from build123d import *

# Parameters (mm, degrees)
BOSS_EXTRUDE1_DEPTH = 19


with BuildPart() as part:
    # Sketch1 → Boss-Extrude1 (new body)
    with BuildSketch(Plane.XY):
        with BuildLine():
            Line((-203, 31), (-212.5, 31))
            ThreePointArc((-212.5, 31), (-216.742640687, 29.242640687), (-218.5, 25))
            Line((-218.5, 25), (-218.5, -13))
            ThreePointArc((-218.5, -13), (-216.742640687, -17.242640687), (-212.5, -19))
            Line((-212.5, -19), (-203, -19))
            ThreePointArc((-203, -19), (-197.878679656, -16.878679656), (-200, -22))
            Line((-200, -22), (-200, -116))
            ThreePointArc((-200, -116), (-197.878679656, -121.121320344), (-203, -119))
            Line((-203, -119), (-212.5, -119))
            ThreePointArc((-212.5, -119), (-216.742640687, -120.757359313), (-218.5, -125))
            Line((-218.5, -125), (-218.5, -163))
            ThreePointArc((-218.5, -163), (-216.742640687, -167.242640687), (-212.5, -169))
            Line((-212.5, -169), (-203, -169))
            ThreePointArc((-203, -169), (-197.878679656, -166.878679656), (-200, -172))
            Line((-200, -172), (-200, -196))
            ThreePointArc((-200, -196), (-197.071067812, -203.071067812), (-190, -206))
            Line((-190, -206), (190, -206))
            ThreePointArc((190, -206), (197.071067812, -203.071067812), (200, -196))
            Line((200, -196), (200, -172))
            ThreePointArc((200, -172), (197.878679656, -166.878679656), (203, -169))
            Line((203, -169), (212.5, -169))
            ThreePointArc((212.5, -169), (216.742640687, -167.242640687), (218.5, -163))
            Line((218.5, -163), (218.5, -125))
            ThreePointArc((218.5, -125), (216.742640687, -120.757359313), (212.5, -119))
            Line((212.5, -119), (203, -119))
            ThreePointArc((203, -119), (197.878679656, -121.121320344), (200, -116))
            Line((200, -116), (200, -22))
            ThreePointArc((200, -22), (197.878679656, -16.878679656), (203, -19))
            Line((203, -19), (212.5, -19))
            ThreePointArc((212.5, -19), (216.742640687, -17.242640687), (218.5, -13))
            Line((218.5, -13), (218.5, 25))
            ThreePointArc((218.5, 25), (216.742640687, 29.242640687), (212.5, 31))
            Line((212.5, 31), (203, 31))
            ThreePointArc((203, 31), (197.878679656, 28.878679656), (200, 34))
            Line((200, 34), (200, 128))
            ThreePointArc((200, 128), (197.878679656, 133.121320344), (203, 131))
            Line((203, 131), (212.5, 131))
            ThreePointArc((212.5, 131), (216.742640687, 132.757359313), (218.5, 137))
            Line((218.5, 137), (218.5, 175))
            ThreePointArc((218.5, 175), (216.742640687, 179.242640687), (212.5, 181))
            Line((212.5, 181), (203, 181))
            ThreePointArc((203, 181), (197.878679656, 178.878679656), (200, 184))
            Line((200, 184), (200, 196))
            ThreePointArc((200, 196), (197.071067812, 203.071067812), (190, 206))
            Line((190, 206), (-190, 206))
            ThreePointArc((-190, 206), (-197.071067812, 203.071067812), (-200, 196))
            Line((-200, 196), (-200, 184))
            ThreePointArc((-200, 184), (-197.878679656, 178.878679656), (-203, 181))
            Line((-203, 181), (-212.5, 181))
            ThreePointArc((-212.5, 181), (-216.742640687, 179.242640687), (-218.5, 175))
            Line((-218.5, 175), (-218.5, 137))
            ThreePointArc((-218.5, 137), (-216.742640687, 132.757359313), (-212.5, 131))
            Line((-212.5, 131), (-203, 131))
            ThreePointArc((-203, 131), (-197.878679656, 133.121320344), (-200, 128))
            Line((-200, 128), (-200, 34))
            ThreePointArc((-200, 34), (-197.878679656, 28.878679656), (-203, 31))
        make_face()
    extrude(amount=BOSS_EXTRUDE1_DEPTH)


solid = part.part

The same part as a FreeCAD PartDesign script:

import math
import FreeCAD as App
import Part
import Sketcher

doc = App.newDocument("Part")
body = doc.addObject("PartDesign::Body", "Body")

# Sketch on XY plane
sketch1 = body.newObject("Sketcher::SketchObject", "Sketch")
sketch1.AttachmentSupport = (doc.getObject("XY_Plane"), [""])
sketch1.MapMode = "FlatFace"
sketch1.addGeometry([
    Part.LineSegment(App.Vector(-203, 31, 0), App.Vector(-212.5, 31, 0)),  # 0
    Part.ArcOfCircle(Part.Circle(App.Vector(-212.5, 25, 0), App.Vector(0, 0, 1), 6), math.radians(90), math.radians(180)),  # 1
    Part.LineSegment(App.Vector(-218.5, 25, 0), App.Vector(-218.5, -13, 0)),  # 2
    Part.ArcOfCircle(Part.Circle(App.Vector(-212.5, -13, 0), App.Vector(0, 0, 1), 6), math.radians(180), math.radians(270)),  # 3
    Part.LineSegment(App.Vector(-212.5, -19, 0), App.Vector(-203, -19, 0)),  # 4
    Part.ArcOfCircle(Part.Circle(App.Vector(-200, -19, 0), App.Vector(0, 0, 1), 3), math.radians(-90), math.radians(180)),  # 5
    Part.LineSegment(App.Vector(-200, -22, 0), App.Vector(-200, -116, 0)),  # 6
    Part.ArcOfCircle(Part.Circle(App.Vector(-200, -119, 0), App.Vector(0, 0, 1), 3), math.radians(180), math.radians(450)),  # 7
    Part.LineSegment(App.Vector(-203, -119, 0), App.Vector(-212.5, -119, 0)),  # 8
    Part.ArcOfCircle(Part.Circle(App.Vector(-212.5, -125, 0), App.Vector(0, 0, 1), 6), math.radians(90), math.radians(180)),  # 9
    Part.LineSegment(App.Vector(-218.5, -125, 0), App.Vector(-218.5, -163, 0)),  # 10
    Part.ArcOfCircle(Part.Circle(App.Vector(-212.5, -163, 0), App.Vector(0, 0, 1), 6), math.radians(180), math.radians(270)),  # 11
    Part.LineSegment(App.Vector(-212.5, -169, 0), App.Vector(-203, -169, 0)),  # 12
    Part.ArcOfCircle(Part.Circle(App.Vector(-200, -169, 0), App.Vector(0, 0, 1), 3), math.radians(-90), math.radians(180)),  # 13
    Part.LineSegment(App.Vector(-200, -172, 0), App.Vector(-200, -196, 0)),  # 14
    Part.ArcOfCircle(Part.Circle(App.Vector(-190, -196, 0), App.Vector(0, 0, 1), 10), math.radians(180), math.radians(270)),  # 15
    Part.LineSegment(App.Vector(-190, -206, 0), App.Vector(190, -206, 0)),  # 16
    Part.ArcOfCircle(Part.Circle(App.Vector(190, -196, 0), App.Vector(0, 0, 1), 10), math.radians(-90), math.radians(0)),  # 17
    Part.LineSegment(App.Vector(200, -196, 0), App.Vector(200, -172, 0)),  # 18
    Part.ArcOfCircle(Part.Circle(App.Vector(200, -169, 0), App.Vector(0, 0, 1), 3), math.radians(0), math.radians(270)),  # 19
    Part.LineSegment(App.Vector(203, -169, 0), App.Vector(212.5, -169, 0)),  # 20
    Part.ArcOfCircle(Part.Circle(App.Vector(212.5, -163, 0), App.Vector(0, 0, 1), 6), math.radians(-90), math.radians(0)),  # 21
    Part.LineSegment(App.Vector(218.5, -163, 0), App.Vector(218.5, -125, 0)),  # 22
    Part.ArcOfCircle(Part.Circle(App.Vector(212.5, -125, 0), App.Vector(0, 0, 1), 6), math.radians(0), math.radians(90)),  # 23
    Part.LineSegment(App.Vector(212.5, -119, 0), App.Vector(203, -119, 0)),  # 24
    Part.ArcOfCircle(Part.Circle(App.Vector(200, -119, 0), App.Vector(0, 0, 1), 3), math.radians(90), math.radians(360)),  # 25
    Part.LineSegment(App.Vector(200, -116, 0), App.Vector(200, -22, 0)),  # 26
    Part.ArcOfCircle(Part.Circle(App.Vector(200, -19, 0), App.Vector(0, 0, 1), 3), math.radians(0), math.radians(270)),  # 27
    Part.LineSegment(App.Vector(203, -19, 0), App.Vector(212.5, -19, 0)),  # 28
    Part.ArcOfCircle(Part.Circle(App.Vector(212.5, -13, 0), App.Vector(0, 0, 1), 6), math.radians(-90), math.radians(0)),  # 29
    Part.LineSegment(App.Vector(218.5, -13, 0), App.Vector(218.5, 25, 0)),  # 30
    Part.ArcOfCircle(Part.Circle(App.Vector(212.5, 25, 0), App.Vector(0, 0, 1), 6), math.radians(0), math.radians(90)),  # 31
    Part.LineSegment(App.Vector(212.5, 31, 0), App.Vector(203, 31, 0)),  # 32
    Part.ArcOfCircle(Part.Circle(App.Vector(200, 31, 0), App.Vector(0, 0, 1), 3), math.radians(90), math.radians(360)),  # 33
    Part.LineSegment(App.Vector(200, 34, 0), App.Vector(200, 128, 0)),  # 34
    Part.ArcOfCircle(Part.Circle(App.Vector(200, 131, 0), App.Vector(0, 0, 1), 3), math.radians(0), math.radians(270)),  # 35
    Part.LineSegment(App.Vector(203, 131, 0), App.Vector(212.5, 131, 0)),  # 36
    Part.ArcOfCircle(Part.Circle(App.Vector(212.5, 137, 0), App.Vector(0, 0, 1), 6), math.radians(-90), math.radians(0)),  # 37
    Part.LineSegment(App.Vector(218.5, 137, 0), App.Vector(218.5, 175, 0)),  # 38
    Part.ArcOfCircle(Part.Circle(App.Vector(212.5, 175, 0), App.Vector(0, 0, 1), 6), math.radians(0), math.radians(90)),  # 39
    Part.LineSegment(App.Vector(212.5, 181, 0), App.Vector(203, 181, 0)),  # 40
    Part.ArcOfCircle(Part.Circle(App.Vector(200, 181, 0), App.Vector(0, 0, 1), 3), math.radians(90), math.radians(360)),  # 41
    Part.LineSegment(App.Vector(200, 184, 0), App.Vector(200, 196, 0)),  # 42
    Part.ArcOfCircle(Part.Circle(App.Vector(190, 196, 0), App.Vector(0, 0, 1), 10), math.radians(0), math.radians(90)),  # 43
    Part.LineSegment(App.Vector(190, 206, 0), App.Vector(-190, 206, 0)),  # 44
    Part.ArcOfCircle(Part.Circle(App.Vector(-190, 196, 0), App.Vector(0, 0, 1), 10), math.radians(90), math.radians(180)),  # 45
    Part.LineSegment(App.Vector(-200, 196, 0), App.Vector(-200, 184, 0)),  # 46
    Part.ArcOfCircle(Part.Circle(App.Vector(-200, 181, 0), App.Vector(0, 0, 1), 3), math.radians(180), math.radians(450)),  # 47
    Part.LineSegment(App.Vector(-203, 181, 0), App.Vector(-212.5, 181, 0)),  # 48
    Part.ArcOfCircle(Part.Circle(App.Vector(-212.5, 175, 0), App.Vector(0, 0, 1), 6), math.radians(90), math.radians(180)),  # 49
    Part.LineSegment(App.Vector(-218.5, 175, 0), App.Vector(-218.5, 137, 0)),  # 50
    Part.ArcOfCircle(Part.Circle(App.Vector(-212.5, 137, 0), App.Vector(0, 0, 1), 6), math.radians(180), math.radians(270)),  # 51
    Part.LineSegment(App.Vector(-212.5, 131, 0), App.Vector(-203, 131, 0)),  # 52
    Part.ArcOfCircle(Part.Circle(App.Vector(-200, 131, 0), App.Vector(0, 0, 1), 3), math.radians(-90), math.radians(180)),  # 53
    Part.LineSegment(App.Vector(-200, 128, 0), App.Vector(-200, 34, 0)),  # 54
    Part.ArcOfCircle(Part.Circle(App.Vector(-200, 31, 0), App.Vector(0, 0, 1), 3), math.radians(180), math.radians(450)),  # 55
], False)
sketch1.addConstraint([
    Sketcher.Constraint("Tangent", 0, 2, 1, 1),
    Sketcher.Constraint("Tangent", 1, 2, 2, 1),
    Sketcher.Constraint("Tangent", 2, 2, 3, 1),
    Sketcher.Constraint("Tangent", 3, 2, 4, 1),
    Sketcher.Constraint("Coincident", 4, 2, 5, 2),
    Sketcher.Constraint("Coincident", 5, 1, 6, 1),
    Sketcher.Constraint("Coincident", 6, 2, 7, 2),
    Sketcher.Constraint("Coincident", 7, 1, 8, 1),
    Sketcher.Constraint("Tangent", 8, 2, 9, 1),
    Sketcher.Constraint("Tangent", 9, 2, 10, 1),
    Sketcher.Constraint("Tangent", 10, 2, 11, 1),
    Sketcher.Constraint("Tangent", 11, 2, 12, 1),
    Sketcher.Constraint("Coincident", 12, 2, 13, 2),
    Sketcher.Constraint("Coincident", 13, 1, 14, 1),
    Sketcher.Constraint("Tangent", 14, 2, 15, 1),
    Sketcher.Constraint("Tangent", 15, 2, 16, 1),
    Sketcher.Constraint("Tangent", 16, 2, 17, 1),
    Sketcher.Constraint("Tangent", 17, 2, 18, 1),
    Sketcher.Constraint("Coincident", 18, 2, 19, 2),
    Sketcher.Constraint("Coincident", 19, 1, 20, 1),
    Sketcher.Constraint("Tangent", 20, 2, 21, 1),
    Sketcher.Constraint("Tangent", 21, 2, 22, 1),
    Sketcher.Constraint("Tangent", 22, 2, 23, 1),
    Sketcher.Constraint("Tangent", 23, 2, 24, 1),
    Sketcher.Constraint("Coincident", 24, 2, 25, 2),
    Sketcher.Constraint("Coincident", 25, 1, 26, 1),
    Sketcher.Constraint("Coincident", 26, 2, 27, 2),
    Sketcher.Constraint("Coincident", 27, 1, 28, 1),
    Sketcher.Constraint("Tangent", 28, 2, 29, 1),
    Sketcher.Constraint("Tangent", 29, 2, 30, 1),
    Sketcher.Constraint("Tangent", 30, 2, 31, 1),
    Sketcher.Constraint("Tangent", 31, 2, 32, 1),
    Sketcher.Constraint("Coincident", 32, 2, 33, 2),
    Sketcher.Constraint("Coincident", 33, 1, 34, 1),
    Sketcher.Constraint("Coincident", 34, 2, 35, 2),
    Sketcher.Constraint("Coincident", 35, 1, 36, 1),
    Sketcher.Constraint("Tangent", 36, 2, 37, 1),
    Sketcher.Constraint("Tangent", 37, 2, 38, 1),
    Sketcher.Constraint("Tangent", 38, 2, 39, 1),
    Sketcher.Constraint("Tangent", 39, 2, 40, 1),
    Sketcher.Constraint("Coincident", 40, 2, 41, 2),
    Sketcher.Constraint("Coincident", 41, 1, 42, 1),
    Sketcher.Constraint("Tangent", 42, 2, 43, 1),
    Sketcher.Constraint("Tangent", 43, 2, 44, 1),
    Sketcher.Constraint("Tangent", 44, 2, 45, 1),
    Sketcher.Constraint("Tangent", 45, 2, 46, 1),
    Sketcher.Constraint("Coincident", 46, 2, 47, 2),
    Sketcher.Constraint("Coincident", 47, 1, 48, 1),
    Sketcher.Constraint("Tangent", 48, 2, 49, 1),
    Sketcher.Constraint("Tangent", 49, 2, 50, 1),
    Sketcher.Constraint("Tangent", 50, 2, 51, 1),
    Sketcher.Constraint("Tangent", 51, 2, 52, 1),
    Sketcher.Constraint("Coincident", 52, 2, 53, 2),
    Sketcher.Constraint("Coincident", 53, 1, 54, 1),
    Sketcher.Constraint("Coincident", 54, 2, 55, 2),
    Sketcher.Constraint("Coincident", 55, 1, 0, 1),
    Sketcher.Constraint("Horizontal", 0),
    Sketcher.Constraint("Vertical", 2),
    Sketcher.Constraint("Horizontal", 4),
    Sketcher.Constraint("Vertical", 6),
    Sketcher.Constraint("Horizontal", 8),
    Sketcher.Constraint("Vertical", 10),
    Sketcher.Constraint("Horizontal", 12),
    Sketcher.Constraint("Vertical", 14),
    Sketcher.Constraint("Horizontal", 16),
    Sketcher.Constraint("Vertical", 18),
    Sketcher.Constraint("Horizontal", 20),
    Sketcher.Constraint("Vertical", 22),
    Sketcher.Constraint("Horizontal", 24),
    Sketcher.Constraint("Vertical", 26),
    Sketcher.Constraint("Horizontal", 28),
    Sketcher.Constraint("Vertical", 30),
    Sketcher.Constraint("Horizontal", 32),
    Sketcher.Constraint("Vertical", 34),
    Sketcher.Constraint("Horizontal", 36),
    Sketcher.Constraint("Vertical", 38),
    Sketcher.Constraint("Horizontal", 40),
    Sketcher.Constraint("Vertical", 42),
    Sketcher.Constraint("Horizontal", 44),
    Sketcher.Constraint("Vertical", 46),
    Sketcher.Constraint("Horizontal", 48),
    Sketcher.Constraint("Vertical", 50),
    Sketcher.Constraint("Horizontal", 52),
    Sketcher.Constraint("Vertical", 54),
    Sketcher.Constraint("Equal", 1, 3),
    Sketcher.Constraint("Equal", 5, 7),
    Sketcher.Constraint("Equal", 3, 9),
    Sketcher.Constraint("Equal", 9, 11),
    Sketcher.Constraint("Equal", 7, 13),
    Sketcher.Constraint("Equal", 15, 17),
    Sketcher.Constraint("Equal", 13, 19),
    Sketcher.Constraint("Equal", 11, 21),
    Sketcher.Constraint("Equal", 21, 23),
    Sketcher.Constraint("Equal", 19, 25),
    Sketcher.Constraint("Equal", 25, 27),
    Sketcher.Constraint("Equal", 23, 29),
    Sketcher.Constraint("Equal", 29, 31),
    Sketcher.Constraint("Equal", 27, 33),
    Sketcher.Constraint("Equal", 33, 35),
    Sketcher.Constraint("Equal", 31, 37),
    Sketcher.Constraint("Equal", 37, 39),
    Sketcher.Constraint("Equal", 35, 41),
    Sketcher.Constraint("Equal", 17, 43),
    Sketcher.Constraint("Equal", 43, 45),
    Sketcher.Constraint("Equal", 41, 47),
    Sketcher.Constraint("Equal", 39, 49),
    Sketcher.Constraint("Equal", 49, 51),
    Sketcher.Constraint("Equal", 47, 53),
    Sketcher.Constraint("Equal", 53, 55),
    Sketcher.Constraint("Symmetric", 15, 3, 43, 3, -1, 1),
    Sketcher.Constraint("Symmetric", 13, 3, 19, 3, -2),
    Sketcher.Constraint("Symmetric", 11, 3, 21, 3, -2),
    Sketcher.Constraint("Symmetric", 7, 3, 25, 3, -2),
    Sketcher.Constraint("Symmetric", 5, 3, 27, 3, -2),
    Sketcher.Constraint("Symmetric", 3, 3, 29, 3, -2),
    Sketcher.Constraint("Symmetric", 41, 3, 47, 3, -2),
    Sketcher.Constraint("Symmetric", 39, 3, 49, 3, -2),
    Sketcher.Constraint("Symmetric", 35, 3, 53, 3, -2),
    Sketcher.Constraint("Symmetric", 33, 3, 55, 3, -2),
    Sketcher.Constraint("Horizontal", 9, 3, 23, 3),
    Sketcher.Constraint("Horizontal", 1, 3, 31, 3),
    Sketcher.Constraint("Horizontal", 37, 3, 51, 3),
    Sketcher.Constraint("Horizontal", 55, 3, 0, 2),
    Sketcher.Constraint("Horizontal", 27, 3, 3, 2),
    Sketcher.Constraint("Horizontal", 25, 3, 7, 1),
    Sketcher.Constraint("Horizontal", 19, 3, 11, 2),
    Sketcher.Constraint("Horizontal", 53, 3, 35, 1),
    Sketcher.Constraint("Horizontal", 47, 3, 39, 2),
    Sketcher.Constraint("Vertical", 5, 3, 7, 3),
    Sketcher.Constraint("Vertical", 3, 3, 9, 3),
    Sketcher.Constraint("Vertical", 7, 3, 13, 3),
    Sketcher.Constraint("Vertical", 27, 3, 33, 3),
    Sketcher.Constraint("Vertical", 33, 3, 35, 3),
    Sketcher.Constraint("Vertical", 31, 3, 37, 3),
    Sketcher.Constraint("Vertical", 35, 3, 41, 3),
    Sketcher.Constraint("Vertical", 17, 3, 43, 3),
    Sketcher.Constraint("Vertical", 15, 3, 45, 3),
    Sketcher.Constraint("Vertical", 55, 3, 5, 1),
    Sketcher.Constraint("Vertical", 6, 2, 13, 1),
    Sketcher.Constraint("Vertical", 18, 2, 25, 1),
    Sketcher.Constraint("Vertical", 26, 2, 33, 1),
    Sketcher.Constraint("Vertical", 46, 2, 53, 1),
    Sketcher.Constraint("Equal", 2, 10),
    Sketcher.Constraint("Equal", 26, 34),
    Sketcher.Constraint("Equal", 30, 38),
    Sketcher.Constraint("Radius", 1, 6.0),
    Sketcher.Constraint("Radius", 5, 3.0),
    Sketcher.Constraint("Radius", 15, 10.0),
    Sketcher.Constraint("DistanceX", 16, 1, 16, 2, 380.0),
    Sketcher.Constraint("DistanceY", 2, 2, 2, 1, 38.0),
    Sketcher.Constraint("DistanceY", 6, 2, 6, 1, 94.0),
    Sketcher.Constraint("DistanceY", 14, 2, 14, 1, 24.0),
    Sketcher.Constraint("DistanceY", 42, 1, 42, 2, 12.0),
    Sketcher.Constraint("DistanceX", 0, 2, 0, 1, 9.5),
])
pad1 = body.newObject("PartDesign::Pad", "Pad")
pad1.Profile = sketch1
pad1.Length = 19

doc.recompute()
